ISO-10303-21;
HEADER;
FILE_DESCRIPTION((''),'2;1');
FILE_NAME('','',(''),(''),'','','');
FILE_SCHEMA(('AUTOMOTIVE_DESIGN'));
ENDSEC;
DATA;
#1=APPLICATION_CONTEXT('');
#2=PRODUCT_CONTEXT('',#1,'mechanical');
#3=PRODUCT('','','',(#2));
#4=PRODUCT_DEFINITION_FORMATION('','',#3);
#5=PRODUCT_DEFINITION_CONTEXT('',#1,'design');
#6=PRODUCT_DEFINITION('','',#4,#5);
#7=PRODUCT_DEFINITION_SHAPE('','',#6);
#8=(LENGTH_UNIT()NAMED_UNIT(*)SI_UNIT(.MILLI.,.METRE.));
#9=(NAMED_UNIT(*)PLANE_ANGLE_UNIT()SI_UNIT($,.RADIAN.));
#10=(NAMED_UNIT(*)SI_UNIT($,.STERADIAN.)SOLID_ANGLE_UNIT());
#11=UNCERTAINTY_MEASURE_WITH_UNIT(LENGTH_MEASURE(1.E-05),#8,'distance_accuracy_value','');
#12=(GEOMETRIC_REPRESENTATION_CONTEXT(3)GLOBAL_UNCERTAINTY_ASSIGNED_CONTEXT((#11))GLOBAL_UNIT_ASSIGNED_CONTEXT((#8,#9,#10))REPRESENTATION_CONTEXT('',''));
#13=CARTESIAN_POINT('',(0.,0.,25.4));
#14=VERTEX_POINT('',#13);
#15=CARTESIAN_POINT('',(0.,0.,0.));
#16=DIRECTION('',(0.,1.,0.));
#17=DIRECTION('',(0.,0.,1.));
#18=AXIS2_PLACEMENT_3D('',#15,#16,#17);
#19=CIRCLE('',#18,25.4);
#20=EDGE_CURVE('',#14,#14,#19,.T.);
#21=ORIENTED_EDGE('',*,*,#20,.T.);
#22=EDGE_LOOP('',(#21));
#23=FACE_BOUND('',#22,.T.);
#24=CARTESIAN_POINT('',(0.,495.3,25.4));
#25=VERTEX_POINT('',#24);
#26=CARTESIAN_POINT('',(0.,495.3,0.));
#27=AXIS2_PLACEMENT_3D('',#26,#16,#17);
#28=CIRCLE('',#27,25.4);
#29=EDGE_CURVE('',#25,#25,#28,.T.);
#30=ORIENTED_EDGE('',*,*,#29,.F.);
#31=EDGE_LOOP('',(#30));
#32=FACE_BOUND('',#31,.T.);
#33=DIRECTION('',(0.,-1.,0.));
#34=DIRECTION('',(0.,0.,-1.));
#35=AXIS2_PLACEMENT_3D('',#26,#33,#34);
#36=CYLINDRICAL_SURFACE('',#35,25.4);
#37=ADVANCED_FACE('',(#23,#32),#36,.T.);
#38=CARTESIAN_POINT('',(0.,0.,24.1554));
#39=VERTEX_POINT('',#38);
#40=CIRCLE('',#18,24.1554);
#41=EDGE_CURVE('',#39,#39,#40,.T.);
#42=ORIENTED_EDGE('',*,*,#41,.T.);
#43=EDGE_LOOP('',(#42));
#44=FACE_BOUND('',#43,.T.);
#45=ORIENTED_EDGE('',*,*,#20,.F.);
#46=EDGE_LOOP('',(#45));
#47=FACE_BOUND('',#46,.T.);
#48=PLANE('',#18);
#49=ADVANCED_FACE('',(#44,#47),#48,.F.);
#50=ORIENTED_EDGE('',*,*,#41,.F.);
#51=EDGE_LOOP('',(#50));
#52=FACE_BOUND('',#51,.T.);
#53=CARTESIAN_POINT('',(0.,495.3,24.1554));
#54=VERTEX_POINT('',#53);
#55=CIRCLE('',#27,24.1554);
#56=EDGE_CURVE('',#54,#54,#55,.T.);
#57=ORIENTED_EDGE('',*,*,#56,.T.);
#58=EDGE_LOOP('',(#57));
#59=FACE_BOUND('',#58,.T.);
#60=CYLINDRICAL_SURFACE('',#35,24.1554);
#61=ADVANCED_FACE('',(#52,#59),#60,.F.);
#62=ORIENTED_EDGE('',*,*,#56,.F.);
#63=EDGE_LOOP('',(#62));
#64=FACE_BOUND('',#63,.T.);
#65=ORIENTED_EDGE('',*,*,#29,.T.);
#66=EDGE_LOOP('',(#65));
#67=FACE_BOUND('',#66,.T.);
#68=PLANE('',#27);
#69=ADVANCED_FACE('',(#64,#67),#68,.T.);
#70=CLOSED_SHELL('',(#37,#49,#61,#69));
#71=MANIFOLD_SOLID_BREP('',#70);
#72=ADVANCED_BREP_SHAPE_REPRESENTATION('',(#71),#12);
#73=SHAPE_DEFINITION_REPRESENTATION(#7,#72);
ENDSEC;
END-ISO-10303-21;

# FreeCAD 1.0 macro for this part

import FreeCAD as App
import Part
import Sketcher
from FreeCAD import Vector
Q = App.Units.Quantity

doc = App.newDocument("Part")
body = doc.addObject("PartDesign::Body", "Body")

# Sketch on XZ plane
sketch1 = body.newObject("Sketcher::SketchObject", "Sketch")
sketch1.AttachmentSupport = (doc.getObject("XZ_Plane"), [""])
sketch1.MapMode = "FlatFace"
sketch1.addGeometry([
    Part.Circle(Vector(0, 0, 0), Vector(0, 0, 1), 25.4),
    Part.Circle(Vector(0, 0, 0), Vector(0, 0, 1), 24.1554),
], False)
sketch1.addConstraint([
    Sketcher.Constraint("Coincident", 0, 3, -1, 1),
    Sketcher.Constraint("Coincident", 1, 3, -1, 1),
    Sketcher.Constraint("Diameter", 0, Q("2 in")),
    Sketcher.Constraint("Diameter", 1, Q("1.902 in")),
])
pad1 = body.newObject("PartDesign::Pad", "Pad")
pad1.Profile = sketch1
pad1.Length = Q("19.5 in")
pad1.Reversed = True

doc.recompute()
